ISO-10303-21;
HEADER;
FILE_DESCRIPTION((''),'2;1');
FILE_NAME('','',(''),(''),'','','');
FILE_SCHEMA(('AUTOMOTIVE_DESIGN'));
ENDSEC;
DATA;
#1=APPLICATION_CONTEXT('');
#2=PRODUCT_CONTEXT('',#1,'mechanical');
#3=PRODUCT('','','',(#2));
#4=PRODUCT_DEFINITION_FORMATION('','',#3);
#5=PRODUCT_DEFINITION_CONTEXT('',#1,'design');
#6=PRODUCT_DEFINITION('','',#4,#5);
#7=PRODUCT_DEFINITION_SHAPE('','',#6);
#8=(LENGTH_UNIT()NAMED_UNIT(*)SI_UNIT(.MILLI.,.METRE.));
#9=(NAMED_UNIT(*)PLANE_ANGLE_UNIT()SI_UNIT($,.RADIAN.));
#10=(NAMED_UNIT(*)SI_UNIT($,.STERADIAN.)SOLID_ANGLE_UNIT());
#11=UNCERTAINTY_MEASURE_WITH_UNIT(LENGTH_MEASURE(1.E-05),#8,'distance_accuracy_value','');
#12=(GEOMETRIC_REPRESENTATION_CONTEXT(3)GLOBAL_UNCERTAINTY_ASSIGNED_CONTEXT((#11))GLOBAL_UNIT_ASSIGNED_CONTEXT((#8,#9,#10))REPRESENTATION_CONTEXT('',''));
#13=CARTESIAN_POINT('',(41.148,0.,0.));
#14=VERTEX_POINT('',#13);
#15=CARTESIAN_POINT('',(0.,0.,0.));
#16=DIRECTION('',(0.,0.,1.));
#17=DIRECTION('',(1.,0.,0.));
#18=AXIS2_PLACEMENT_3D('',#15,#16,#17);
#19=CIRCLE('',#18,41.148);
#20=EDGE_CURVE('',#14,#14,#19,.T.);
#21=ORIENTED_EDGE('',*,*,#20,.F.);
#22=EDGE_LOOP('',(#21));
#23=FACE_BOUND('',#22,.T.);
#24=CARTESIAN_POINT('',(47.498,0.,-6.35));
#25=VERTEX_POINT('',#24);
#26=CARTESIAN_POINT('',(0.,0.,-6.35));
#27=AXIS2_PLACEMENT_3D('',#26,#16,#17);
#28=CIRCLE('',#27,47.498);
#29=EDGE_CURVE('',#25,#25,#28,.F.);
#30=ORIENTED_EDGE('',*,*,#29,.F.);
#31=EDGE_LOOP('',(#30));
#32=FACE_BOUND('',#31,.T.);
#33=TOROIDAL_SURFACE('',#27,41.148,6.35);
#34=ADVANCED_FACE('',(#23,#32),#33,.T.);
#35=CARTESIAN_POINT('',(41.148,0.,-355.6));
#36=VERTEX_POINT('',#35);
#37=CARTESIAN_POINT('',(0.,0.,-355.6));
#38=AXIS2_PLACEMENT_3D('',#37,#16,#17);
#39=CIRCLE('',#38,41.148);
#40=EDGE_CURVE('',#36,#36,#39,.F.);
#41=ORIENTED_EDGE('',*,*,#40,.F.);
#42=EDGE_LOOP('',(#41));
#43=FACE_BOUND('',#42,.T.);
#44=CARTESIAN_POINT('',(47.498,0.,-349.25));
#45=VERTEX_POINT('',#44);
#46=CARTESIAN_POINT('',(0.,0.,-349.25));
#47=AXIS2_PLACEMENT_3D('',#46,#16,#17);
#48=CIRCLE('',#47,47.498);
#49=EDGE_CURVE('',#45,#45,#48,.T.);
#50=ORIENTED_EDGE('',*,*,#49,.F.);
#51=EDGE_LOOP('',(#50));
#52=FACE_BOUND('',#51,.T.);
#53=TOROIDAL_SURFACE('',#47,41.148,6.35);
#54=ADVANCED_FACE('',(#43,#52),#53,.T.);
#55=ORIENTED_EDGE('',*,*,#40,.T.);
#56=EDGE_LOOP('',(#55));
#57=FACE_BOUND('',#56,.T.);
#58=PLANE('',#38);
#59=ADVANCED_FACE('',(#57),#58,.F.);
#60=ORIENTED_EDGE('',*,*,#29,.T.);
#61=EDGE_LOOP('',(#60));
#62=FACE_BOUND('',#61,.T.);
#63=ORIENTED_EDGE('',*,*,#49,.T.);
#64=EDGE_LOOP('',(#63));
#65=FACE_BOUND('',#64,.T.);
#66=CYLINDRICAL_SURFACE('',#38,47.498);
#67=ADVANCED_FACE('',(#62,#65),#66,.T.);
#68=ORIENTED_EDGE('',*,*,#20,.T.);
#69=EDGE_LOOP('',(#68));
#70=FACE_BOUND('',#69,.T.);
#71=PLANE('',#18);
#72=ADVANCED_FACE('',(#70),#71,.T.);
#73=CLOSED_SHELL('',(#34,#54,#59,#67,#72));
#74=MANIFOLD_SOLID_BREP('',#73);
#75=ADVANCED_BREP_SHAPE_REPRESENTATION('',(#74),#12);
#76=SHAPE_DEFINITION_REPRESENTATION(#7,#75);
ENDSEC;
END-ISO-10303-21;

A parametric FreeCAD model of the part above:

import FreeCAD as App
import Part
import Sketcher

V = App.Vector
Q = App.Units.Quantity


def edges_at(feature, points):
    """Names of the edges that pass closest to the given points."""
    edges = feature.Shape.Edges
    near = lambda p: min(range(len(edges)), key=lambda i: edges[i].distToShape(Part.Vertex(*p))[0])
    return sorted({f"Edge{near(p) + 1}" for p in points})

doc = App.newDocument("Part")
body = doc.addObject("PartDesign::Body", "Body")

# Sketch on XY plane
sketch1 = body.newObject("Sketcher::SketchObject", "Sketch")
sketch1.AttachmentSupport = (doc.getObject("XY_Plane"), [""])
sketch1.MapMode = "FlatFace"
sketch1.addGeometry(Part.Circle(V(0, 0, 0), V(0, 0, 1), 47.498), False)
sketch1.addConstraint([
    Sketcher.Constraint("Coincident", 0, 3, -1, 1),
    Sketcher.Constraint("Diameter", 0, Q("3.74 in")),
])
pad1 = body.newObject("PartDesign::Pad", "Pad")
pad1.Profile = sketch1
pad1.Length = Q("14 in")
pad1.Reversed = True
doc.recompute()

fillet = body.newObject("PartDesign::Fillet", "Fillet")
fillet.Base = (pad1, edges_at(pad1, [(-47.498, 0, 0), (-47.498, 0, -355.6)]))
fillet.Radius = Q("0.25 in")

doc.recompute()
